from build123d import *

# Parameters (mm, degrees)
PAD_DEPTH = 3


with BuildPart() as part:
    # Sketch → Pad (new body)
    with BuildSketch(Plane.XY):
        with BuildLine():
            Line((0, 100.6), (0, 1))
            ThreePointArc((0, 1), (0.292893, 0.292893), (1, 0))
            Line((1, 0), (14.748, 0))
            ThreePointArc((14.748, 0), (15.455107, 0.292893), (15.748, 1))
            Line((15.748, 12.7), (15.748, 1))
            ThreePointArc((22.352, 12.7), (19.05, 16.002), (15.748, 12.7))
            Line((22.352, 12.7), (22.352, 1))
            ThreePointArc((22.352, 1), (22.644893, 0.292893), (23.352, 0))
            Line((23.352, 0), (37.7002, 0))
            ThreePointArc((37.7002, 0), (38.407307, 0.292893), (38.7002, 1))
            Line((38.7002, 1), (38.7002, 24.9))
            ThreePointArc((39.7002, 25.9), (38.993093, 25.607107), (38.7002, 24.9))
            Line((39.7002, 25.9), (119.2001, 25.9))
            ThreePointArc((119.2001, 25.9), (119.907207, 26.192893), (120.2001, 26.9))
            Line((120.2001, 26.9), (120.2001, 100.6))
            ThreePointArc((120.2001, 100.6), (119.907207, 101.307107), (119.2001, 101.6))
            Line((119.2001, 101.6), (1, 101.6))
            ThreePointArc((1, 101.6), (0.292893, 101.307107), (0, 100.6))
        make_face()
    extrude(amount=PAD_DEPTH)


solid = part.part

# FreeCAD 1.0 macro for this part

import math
import FreeCAD as App
import Part
import Sketcher
from FreeCAD import Vector

doc = App.newDocument("Part")
body = doc.addObject("PartDesign::Body", "Body")

sketch1 = body.newObject("Sketcher::SketchObject", "Sketch")
sketch1.AttachmentSupport = (doc.getObject("XY_Plane"), [""])
sketch1.MapMode = "FlatFace"
sketch1.addGeometry([
    Part.LineSegment(Vector(0, 100.6, 0), Vector(0, 1, 0)),
    Part.ArcOfCircle(Part.Circle(Vector(0.999999, 0.999999, 0), Vector(0, 0, 1), 0.999999), math.radians(179.999957), math.radians(270.000043)),
    Part.LineSegment(Vector(1, 0, 0), Vector(14.748, 0, 0)),
    Part.ArcOfCircle(Part.Circle(Vector(14.748001, 0.999999, 0), Vector(0, 0, 1), 0.999999), math.radians(-90.000043), math.radians(0.000043)),
    Part.LineSegment(Vector(15.748, 1, 0), Vector(15.748, 12.7, 0)),
    Part.ArcOfCircle(Part.Circle(Vector(19.05, 12.7, 0), Vector(0, 0, 1), 3.302), math.radians(0), math.radians(180)),
    Part.LineSegment(Vector(22.352, 12.7, 0), Vector(22.352, 1, 0)),
    Part.ArcOfCircle(Part.Circle(Vector(23.351999, 0.999999, 0), Vector(0, 0, 1), 0.999999), math.radians(179.999957), math.radians(270.000043)),
    Part.LineSegment(Vector(23.352, 0, 0), Vector(37.7002, 0, 0)),
    Part.ArcOfCircle(Part.Circle(Vector(37.700201, 0.999999, 0), Vector(0, 0, 1), 0.999999), math.radians(-90.000043), math.radians(0.000043)),
    Part.LineSegment(Vector(38.7002, 1, 0), Vector(38.7002, 24.9, 0)),
    Part.ArcOfCircle(Part.Circle(Vector(39.700199, 24.900001, 0), Vector(0, 0, 1), 0.999999), math.radians(89.999957), math.radians(180.000043)),
    Part.LineSegment(Vector(39.7002, 25.9, 0), Vector(119.2001, 25.9, 0)),
    Part.ArcOfCircle(Part.Circle(Vector(119.200101, 26.899999, 0), Vector(0, 0, 1), 0.999999), math.radians(-90.000043), math.radians(0.000043)),
    Part.LineSegment(Vector(120.2001, 26.9, 0), Vector(120.2001, 100.6, 0)),
    Part.ArcOfCircle(Part.Circle(Vector(119.200101, 100.600001, 0), Vector(0, 0, 1), 0.999999), math.radians(-0.000043), math.radians(90.000043)),
    Part.LineSegment(Vector(119.2001, 101.6, 0), Vector(1, 101.6, 0)),
    Part.ArcOfCircle(Part.Circle(Vector(0.999999, 100.600001, 0), Vector(0, 0, 1), 0.999999), math.radians(89.999957), math.radians(180.000043)),
], False)
sketch1.addConstraint([
    Sketcher.Constraint("Tangent", 0, 2, 1, 1),
    Sketcher.Constraint("Tangent", 1, 2, 2, 1),
    Sketcher.Constraint("Tangent", 2, 2, 3, 1),
    Sketcher.Constraint("Tangent", 3, 2, 4, 1),
    Sketcher.Constraint("Tangent", 4, 2, 5, 2),
    Sketcher.Constraint("Tangent", 5, 1, 6, 1),
    Sketcher.Constraint("Tangent", 6, 2, 7, 1),
    Sketcher.Constraint("Tangent", 7, 2, 8, 1),
    Sketcher.Constraint("Tangent", 8, 2, 9, 1),
    Sketcher.Constraint("Tangent", 9, 2, 10, 1),
    Sketcher.Constraint("Tangent", 10, 2, 11, 2),
    Sketcher.Constraint("Tangent", 11, 1, 12, 1),
    Sketcher.Constraint("Tangent", 12, 2, 13, 1),
    Sketcher.Constraint("Tangent", 13, 2, 14, 1),
    Sketcher.Constraint("Tangent", 14, 2, 15, 1),
    Sketcher.Constraint("Tangent", 15, 2, 16, 1),
    Sketcher.Constraint("Tangent", 16, 2, 17, 1),
    Sketcher.Constraint("Tangent", 17, 2, 0, 1),
    Sketcher.Constraint("Vertical", 0),
    Sketcher.Constraint("Horizontal", 2),
    Sketcher.Constraint("Vertical", 4),
    Sketcher.Constraint("Vertical", 6),
    Sketcher.Constraint("Horizontal", 8),
    Sketcher.Constraint("Vertical", 10),
    Sketcher.Constraint("Horizontal", 12),
    Sketcher.Constraint("Vertical", 14),
    Sketcher.Constraint("Horizontal", 16),
    Sketcher.Constraint("Equal", 1, 3),
    Sketcher.Constraint("Equal", 3, 7),
    Sketcher.Constraint("Equal", 7, 9),
    Sketcher.Constraint("Equal", 9, 11),
    Sketcher.Constraint("Equal", 11, 13),
    Sketcher.Constraint("Equal", 13, 15),
    Sketcher.Constraint("Equal", 15, 17),
    Sketcher.Constraint("PointOnObject", 0, 2, -2),
    Sketcher.Constraint("PointOnObject", 1, 2, -1),
    Sketcher.Constraint("PointOnObject", 7, 2, -1),
    Sketcher.Constraint("Radius", 1, 0.999999),
    Sketcher.Constraint("DistanceY", 0, 2, 0, 1, 99.6),
    Sketcher.Constraint("DistanceY", 4, 1, 4, 2, 11.7),
    Sketcher.Constraint("DistanceY", 10, 1, 10, 2, 23.9),
    Sketcher.Constraint("Radius", 5, 3.302),
    Sketcher.Constraint("DistanceX", 2, 1, 2, 2, 13.748),
    Sketcher.Constraint("DistanceX", 8, 1, 8, 2, 14.3482),
    Sketcher.Constraint("DistanceX", 12, 1, 12, 2, 79.4999),
])
pad1 = body.newObject("PartDesign::Pad", "Pad")
pad1.Profile = sketch1
pad1.Length = 3

doc.recompute()
